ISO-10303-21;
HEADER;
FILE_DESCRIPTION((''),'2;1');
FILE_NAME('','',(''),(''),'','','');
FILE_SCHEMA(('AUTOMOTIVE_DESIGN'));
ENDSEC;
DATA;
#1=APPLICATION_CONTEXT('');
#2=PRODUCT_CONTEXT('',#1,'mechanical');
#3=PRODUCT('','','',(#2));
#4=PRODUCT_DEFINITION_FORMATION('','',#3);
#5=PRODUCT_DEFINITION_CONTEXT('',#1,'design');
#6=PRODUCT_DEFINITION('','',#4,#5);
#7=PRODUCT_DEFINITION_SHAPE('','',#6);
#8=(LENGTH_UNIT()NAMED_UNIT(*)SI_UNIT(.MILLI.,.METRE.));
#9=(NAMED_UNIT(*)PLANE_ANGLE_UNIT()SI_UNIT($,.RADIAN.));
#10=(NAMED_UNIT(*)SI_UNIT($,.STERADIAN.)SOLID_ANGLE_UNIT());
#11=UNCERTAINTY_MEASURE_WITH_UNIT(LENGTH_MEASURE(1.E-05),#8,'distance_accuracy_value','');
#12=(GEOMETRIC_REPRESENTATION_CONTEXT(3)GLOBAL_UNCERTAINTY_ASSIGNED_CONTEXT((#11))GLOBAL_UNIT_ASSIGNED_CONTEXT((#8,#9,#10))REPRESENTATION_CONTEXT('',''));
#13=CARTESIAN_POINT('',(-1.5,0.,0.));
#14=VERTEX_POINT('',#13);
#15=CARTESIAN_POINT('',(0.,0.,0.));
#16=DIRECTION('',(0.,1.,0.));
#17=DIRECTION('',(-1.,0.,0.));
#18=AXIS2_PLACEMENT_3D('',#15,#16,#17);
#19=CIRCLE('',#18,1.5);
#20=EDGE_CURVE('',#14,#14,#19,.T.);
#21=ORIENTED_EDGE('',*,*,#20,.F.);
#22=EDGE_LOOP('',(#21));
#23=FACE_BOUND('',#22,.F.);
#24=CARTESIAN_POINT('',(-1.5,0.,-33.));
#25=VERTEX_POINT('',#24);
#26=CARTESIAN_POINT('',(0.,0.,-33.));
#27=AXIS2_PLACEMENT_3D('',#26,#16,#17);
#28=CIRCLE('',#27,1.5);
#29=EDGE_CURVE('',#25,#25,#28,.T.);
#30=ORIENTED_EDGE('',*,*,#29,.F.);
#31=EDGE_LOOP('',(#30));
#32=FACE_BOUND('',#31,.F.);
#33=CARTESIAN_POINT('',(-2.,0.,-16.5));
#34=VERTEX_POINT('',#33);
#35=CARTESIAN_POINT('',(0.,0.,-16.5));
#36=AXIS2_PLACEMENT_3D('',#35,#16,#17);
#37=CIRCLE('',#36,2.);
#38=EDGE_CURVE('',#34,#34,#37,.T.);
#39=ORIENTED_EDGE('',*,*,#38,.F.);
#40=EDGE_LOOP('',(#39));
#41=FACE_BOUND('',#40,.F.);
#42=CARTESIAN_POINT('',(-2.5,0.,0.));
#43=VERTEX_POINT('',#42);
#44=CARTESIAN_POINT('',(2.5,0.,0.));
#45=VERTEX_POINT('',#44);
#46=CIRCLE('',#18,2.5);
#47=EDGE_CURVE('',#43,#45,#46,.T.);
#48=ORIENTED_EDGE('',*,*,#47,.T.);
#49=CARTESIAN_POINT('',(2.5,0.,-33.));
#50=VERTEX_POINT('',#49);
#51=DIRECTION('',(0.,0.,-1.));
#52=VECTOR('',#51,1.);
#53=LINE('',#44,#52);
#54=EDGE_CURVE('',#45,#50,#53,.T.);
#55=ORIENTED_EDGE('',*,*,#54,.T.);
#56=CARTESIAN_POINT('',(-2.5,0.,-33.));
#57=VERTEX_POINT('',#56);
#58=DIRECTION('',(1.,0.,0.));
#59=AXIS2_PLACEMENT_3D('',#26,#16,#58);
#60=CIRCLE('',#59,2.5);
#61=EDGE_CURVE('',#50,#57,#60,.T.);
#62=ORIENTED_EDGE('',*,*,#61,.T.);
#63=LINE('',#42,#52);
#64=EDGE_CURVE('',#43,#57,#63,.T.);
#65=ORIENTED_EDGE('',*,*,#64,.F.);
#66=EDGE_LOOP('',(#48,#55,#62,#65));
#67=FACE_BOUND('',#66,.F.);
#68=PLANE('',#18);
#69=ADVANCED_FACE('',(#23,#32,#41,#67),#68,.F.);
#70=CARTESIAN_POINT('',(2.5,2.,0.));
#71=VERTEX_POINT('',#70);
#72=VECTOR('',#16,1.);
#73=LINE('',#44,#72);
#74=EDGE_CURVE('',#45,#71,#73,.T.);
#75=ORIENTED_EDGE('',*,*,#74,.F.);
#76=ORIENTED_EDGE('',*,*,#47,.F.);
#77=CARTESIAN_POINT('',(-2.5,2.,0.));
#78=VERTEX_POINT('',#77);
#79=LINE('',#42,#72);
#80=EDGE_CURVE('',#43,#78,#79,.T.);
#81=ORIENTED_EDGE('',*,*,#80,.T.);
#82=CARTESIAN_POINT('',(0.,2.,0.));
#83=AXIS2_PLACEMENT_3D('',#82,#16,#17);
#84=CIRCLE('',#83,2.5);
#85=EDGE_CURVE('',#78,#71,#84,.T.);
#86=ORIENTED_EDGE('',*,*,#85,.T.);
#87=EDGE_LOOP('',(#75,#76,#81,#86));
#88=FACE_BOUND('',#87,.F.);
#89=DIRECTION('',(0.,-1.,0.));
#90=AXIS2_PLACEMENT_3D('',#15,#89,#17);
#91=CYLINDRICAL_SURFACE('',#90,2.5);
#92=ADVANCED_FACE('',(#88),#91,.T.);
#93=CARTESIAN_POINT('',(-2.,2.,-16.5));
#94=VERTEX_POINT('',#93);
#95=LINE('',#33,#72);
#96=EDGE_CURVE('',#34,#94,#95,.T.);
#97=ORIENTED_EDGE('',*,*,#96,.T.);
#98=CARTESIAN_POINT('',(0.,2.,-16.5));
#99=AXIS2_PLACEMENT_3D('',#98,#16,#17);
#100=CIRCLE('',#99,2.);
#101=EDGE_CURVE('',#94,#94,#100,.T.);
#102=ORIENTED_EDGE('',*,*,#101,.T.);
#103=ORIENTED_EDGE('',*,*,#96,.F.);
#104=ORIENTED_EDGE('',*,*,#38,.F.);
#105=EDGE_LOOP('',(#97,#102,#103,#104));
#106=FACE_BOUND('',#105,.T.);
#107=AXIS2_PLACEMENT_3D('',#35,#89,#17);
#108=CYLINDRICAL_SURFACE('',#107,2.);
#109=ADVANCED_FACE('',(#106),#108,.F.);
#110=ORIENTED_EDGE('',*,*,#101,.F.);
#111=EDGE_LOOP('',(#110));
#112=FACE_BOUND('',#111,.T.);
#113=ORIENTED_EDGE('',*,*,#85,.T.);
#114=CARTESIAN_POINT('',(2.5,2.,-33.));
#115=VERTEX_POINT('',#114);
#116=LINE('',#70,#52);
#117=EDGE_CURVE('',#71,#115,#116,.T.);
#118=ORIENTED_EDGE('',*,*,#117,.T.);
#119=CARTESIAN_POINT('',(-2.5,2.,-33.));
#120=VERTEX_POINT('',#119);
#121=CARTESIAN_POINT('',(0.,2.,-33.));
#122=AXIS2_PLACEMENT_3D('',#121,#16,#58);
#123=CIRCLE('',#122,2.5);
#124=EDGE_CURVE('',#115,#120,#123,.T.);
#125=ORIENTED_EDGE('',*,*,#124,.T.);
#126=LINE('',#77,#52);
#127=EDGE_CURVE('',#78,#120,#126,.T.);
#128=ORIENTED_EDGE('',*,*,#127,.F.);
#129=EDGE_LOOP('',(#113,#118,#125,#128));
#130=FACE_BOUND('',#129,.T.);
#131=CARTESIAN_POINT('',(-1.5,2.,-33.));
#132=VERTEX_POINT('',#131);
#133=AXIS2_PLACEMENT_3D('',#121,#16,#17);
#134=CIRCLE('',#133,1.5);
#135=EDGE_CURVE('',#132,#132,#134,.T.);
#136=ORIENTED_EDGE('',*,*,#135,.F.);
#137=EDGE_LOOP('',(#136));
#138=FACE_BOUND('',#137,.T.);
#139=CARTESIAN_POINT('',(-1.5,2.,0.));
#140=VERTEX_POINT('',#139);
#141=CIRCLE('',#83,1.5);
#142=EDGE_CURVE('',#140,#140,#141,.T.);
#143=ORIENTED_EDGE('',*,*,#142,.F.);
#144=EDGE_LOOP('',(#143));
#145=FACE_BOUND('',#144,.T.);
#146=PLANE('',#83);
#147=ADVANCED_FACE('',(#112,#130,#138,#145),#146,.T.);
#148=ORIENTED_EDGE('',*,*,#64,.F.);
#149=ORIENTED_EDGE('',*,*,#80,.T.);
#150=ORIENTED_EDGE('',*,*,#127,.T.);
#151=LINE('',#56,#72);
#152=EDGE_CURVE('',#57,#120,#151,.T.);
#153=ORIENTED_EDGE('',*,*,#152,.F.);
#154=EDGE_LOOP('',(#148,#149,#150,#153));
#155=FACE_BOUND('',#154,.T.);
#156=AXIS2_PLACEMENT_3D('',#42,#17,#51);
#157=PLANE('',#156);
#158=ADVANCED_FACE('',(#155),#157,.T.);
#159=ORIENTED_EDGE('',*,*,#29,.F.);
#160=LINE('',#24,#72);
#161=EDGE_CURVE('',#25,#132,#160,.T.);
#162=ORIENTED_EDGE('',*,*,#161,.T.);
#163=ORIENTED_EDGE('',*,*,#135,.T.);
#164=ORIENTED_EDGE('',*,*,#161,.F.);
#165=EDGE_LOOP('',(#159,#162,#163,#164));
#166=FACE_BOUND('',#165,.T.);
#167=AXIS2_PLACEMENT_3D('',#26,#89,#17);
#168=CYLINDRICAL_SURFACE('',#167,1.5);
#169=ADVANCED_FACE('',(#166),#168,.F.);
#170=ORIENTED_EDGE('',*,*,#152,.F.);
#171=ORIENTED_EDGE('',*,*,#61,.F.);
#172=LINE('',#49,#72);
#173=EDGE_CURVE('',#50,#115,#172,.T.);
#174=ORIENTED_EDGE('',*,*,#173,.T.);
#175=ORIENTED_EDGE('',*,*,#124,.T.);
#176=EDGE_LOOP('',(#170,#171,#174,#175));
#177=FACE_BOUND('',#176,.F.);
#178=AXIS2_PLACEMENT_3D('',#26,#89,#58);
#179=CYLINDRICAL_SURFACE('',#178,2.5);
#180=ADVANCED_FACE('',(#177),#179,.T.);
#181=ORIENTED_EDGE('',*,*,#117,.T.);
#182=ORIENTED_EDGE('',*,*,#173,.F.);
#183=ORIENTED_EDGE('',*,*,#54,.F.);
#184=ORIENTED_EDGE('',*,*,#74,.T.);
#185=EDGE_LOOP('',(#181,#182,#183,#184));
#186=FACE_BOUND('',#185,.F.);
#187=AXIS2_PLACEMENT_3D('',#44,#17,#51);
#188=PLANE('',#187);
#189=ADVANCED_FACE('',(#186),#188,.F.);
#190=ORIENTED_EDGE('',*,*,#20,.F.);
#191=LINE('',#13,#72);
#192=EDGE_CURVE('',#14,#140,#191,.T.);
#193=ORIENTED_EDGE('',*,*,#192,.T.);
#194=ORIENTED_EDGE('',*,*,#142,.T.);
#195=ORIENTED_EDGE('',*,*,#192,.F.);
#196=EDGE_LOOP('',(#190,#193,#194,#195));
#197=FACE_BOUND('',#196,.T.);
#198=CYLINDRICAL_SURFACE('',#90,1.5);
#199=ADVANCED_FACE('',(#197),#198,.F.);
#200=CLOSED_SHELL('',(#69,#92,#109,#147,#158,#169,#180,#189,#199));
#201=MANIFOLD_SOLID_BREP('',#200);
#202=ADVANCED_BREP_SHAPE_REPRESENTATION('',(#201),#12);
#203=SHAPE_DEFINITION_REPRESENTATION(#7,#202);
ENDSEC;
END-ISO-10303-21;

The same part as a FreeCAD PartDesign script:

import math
import FreeCAD as App
import Part
import Sketcher
Q = App.Units.Quantity

doc = App.newDocument("Part")
body = doc.addObject("PartDesign::Body", "Body")

sketch1 = body.newObject("Sketcher::SketchObject", "Sketch")
sketch1.AttachmentSupport = (doc.getObject("XZ_Plane"), [""])
sketch1.MapMode = "FlatFace"
sketch1.addGeometry([
    Part.LineSegment(App.Vector(-2.5, -33, 0), App.Vector(-2.5, 0, 0)),
    Part.ArcOfCircle(Part.Circle(App.Vector(0, 0, 0), App.Vector(0, 0, 1), 2.5), math.radians(0), math.radians(180)),
    Part.LineSegment(App.Vector(2.5, 0, 0), App.Vector(2.5, -33, 0)),
    Part.ArcOfCircle(Part.Circle(App.Vector(0, -33, 0), App.Vector(0, 0, 1), 2.5), math.radians(180), math.radians(360)),
    Part.Circle(App.Vector(0, -33, 0), App.Vector(0, 0, 1), 1.5),
    Part.Circle(App.Vector(0, -16.5, 0), App.Vector(0, 0, 1), 2),
    Part.Circle(App.Vector(0, 0, 0), App.Vector(0, 0, 1), 1.5),
], False)
sketch1.addConstraint([
    Sketcher.Constraint("Tangent", 0, 2, 1, 2),
    Sketcher.Constraint("Tangent", 1, 1, 2, 1),
    Sketcher.Constraint("Tangent", 2, 2, 3, 2),
    Sketcher.Constraint("Tangent", 3, 1, 0, 1),
    Sketcher.Constraint("Vertical", 0),
    Sketcher.Constraint("Vertical", 2),
    Sketcher.Constraint("Coincident", 1, 3, -1, 1),
    Sketcher.Constraint("Coincident", 6, 3, -1, 1),
    Sketcher.Constraint("Coincident", 4, 3, 3, 3),
    Sketcher.Constraint("Equal", 4, 6),
    Sketcher.Constraint("PointOnObject", 5, 3, -2),
    Sketcher.Constraint("Diameter", 4, Q("3 mm")),
    Sketcher.Constraint("Diameter", 5, Q("4 mm")),
    Sketcher.Constraint("Radius", 1, Q("2.5 mm")),
    Sketcher.Constraint("DistanceY", 0, 1, 0, 2, Q("33 mm")),
    Sketcher.Constraint("DistanceY", 5, 3, -1, 1, Q("16.5 mm")),
])
pad1 = body.newObject("PartDesign::Pad", "Pad")
pad1.Profile = sketch1
pad1.Length = 2
pad1.Reversed = True

doc.recompute()
